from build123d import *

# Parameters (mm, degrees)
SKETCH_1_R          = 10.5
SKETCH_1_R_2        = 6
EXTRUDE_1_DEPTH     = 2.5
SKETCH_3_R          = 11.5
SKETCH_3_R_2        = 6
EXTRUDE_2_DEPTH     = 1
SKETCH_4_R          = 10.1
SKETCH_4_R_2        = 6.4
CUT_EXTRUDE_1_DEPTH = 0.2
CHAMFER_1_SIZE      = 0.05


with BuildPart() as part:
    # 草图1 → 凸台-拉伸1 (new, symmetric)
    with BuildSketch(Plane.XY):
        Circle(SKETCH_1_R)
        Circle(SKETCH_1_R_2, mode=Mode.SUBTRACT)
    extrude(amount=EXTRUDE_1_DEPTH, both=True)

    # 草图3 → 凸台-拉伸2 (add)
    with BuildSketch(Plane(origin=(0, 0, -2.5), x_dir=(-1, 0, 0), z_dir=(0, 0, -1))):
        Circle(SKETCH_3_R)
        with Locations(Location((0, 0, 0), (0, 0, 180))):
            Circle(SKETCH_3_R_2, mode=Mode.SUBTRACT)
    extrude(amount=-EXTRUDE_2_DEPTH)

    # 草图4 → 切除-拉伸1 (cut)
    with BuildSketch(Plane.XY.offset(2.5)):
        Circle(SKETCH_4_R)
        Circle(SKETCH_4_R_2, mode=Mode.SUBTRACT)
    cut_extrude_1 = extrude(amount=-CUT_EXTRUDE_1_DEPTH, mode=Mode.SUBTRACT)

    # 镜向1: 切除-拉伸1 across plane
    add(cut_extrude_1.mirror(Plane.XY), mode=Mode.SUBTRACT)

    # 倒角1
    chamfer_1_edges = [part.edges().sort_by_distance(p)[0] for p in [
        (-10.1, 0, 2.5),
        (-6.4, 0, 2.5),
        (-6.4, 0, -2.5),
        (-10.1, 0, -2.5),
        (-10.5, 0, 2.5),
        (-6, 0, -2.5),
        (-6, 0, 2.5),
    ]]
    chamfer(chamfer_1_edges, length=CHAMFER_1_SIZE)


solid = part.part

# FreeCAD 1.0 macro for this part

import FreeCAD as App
import Part
import Sketcher


def edges_at(feature, points):
    """Names of the edges that pass closest to the given points."""
    edges = feature.Shape.Edges
    near = lambda p: min(range(len(edges)), key=lambda i: edges[i].distToShape(Part.Vertex(*p))[0])
    return sorted({f"Edge{near(p) + 1}" for p in points})

doc = App.newDocument("Part")
body = doc.addObject("PartDesign::Body", "Body")

# Sketch on XY plane
sketch1 = body.newObject("Sketcher::SketchObject", "Sketch")
sketch1.AttachmentSupport = (doc.getObject("XY_Plane"), [""])
sketch1.MapMode = "FlatFace"
sketch1.addGeometry([
    Part.Circle(App.Vector(0, 0, 0), App.Vector(0, 0, 1), 10),
    Part.Circle(App.Vector(0, 0, 0), App.Vector(0, 0, 1), 6),
], False)
sketch1.addConstraint([
    Sketcher.Constraint("Coincident", 0, 3, -1, 1),
    Sketcher.Constraint("Coincident", 1, 3, -1, 1),
    Sketcher.Constraint("Diameter", 0, 21.0),
    Sketcher.Constraint("Diameter", 1, 12.0),
])
pad1 = body.newObject("PartDesign::Pad", "Pad")
pad1.Profile = sketch1
pad1.Length = 5
pad1.Midplane = True

# Sketch on XY plane
sketch2 = body.newObject("Sketcher::SketchObject", "Sketch001")
sketch2.AttachmentSupport = (doc.getObject("XY_Plane"), [""])
sketch2.MapMode = "FlatFace"
sketch2.AttachmentOffset = App.Placement(App.Vector(0, 0, -2.5), App.Rotation())
sketch2.addGeometry([
    Part.Circle(App.Vector(0, 0, 0), App.Vector(0, 0, 1), 12),
    Part.Circle(App.Vector(0, 0, 0), App.Vector(0, 0, 1), 6),
], False)
sketch2.addConstraint([
    Sketcher.Constraint("Coincident", 0, 3, -1, 1),
    Sketcher.Constraint("Coincident", 1, 3, -1, 1),
    Sketcher.Constraint("Diameter", 0, 23.0),
    Sketcher.Constraint("Diameter", 1, 12.0),
])
pad2 = body.newObject("PartDesign::Pad", "Pad001")
pad2.Profile = sketch2
pad2.Length = 1

# Sketch on XY plane
sketch3 = body.newObject("Sketcher::SketchObject", "Sketch002")
sketch3.AttachmentSupport = (doc.getObject("XY_Plane"), [""])
sketch3.MapMode = "FlatFace"
sketch3.AttachmentOffset = App.Placement(App.Vector(0, 0, 2.5), App.Rotation())
sketch3.addGeometry([
    Part.Circle(App.Vector(0, 0, 0), App.Vector(0, 0, 1), 10),
    Part.Circle(App.Vector(0, 0, 0), App.Vector(0, 0, 1), 6),
], False)
sketch3.addConstraint([
    Sketcher.Constraint("Coincident", 0, 3, -1, 1),
    Sketcher.Constraint("Coincident", 1, 3, -1, 1),
    Sketcher.Constraint("Diameter", 0, 20.2),
    Sketcher.Constraint("Diameter", 1, 12.8),
])
pocket1 = body.newObject("PartDesign::Pocket", "Pocket")
pocket1.Profile = sketch3
pocket1.Length = 0.2
doc.recompute()

mirrored = body.newObject("PartDesign::Mirrored", "Mirrored")
mirrored.Originals = [pocket1]
mirrored.MirrorPlane = (doc.getObject("XY_Plane"), [""])
body.Tip = mirrored
doc.recompute()

chamfer = body.newObject("PartDesign::Chamfer", "Chamfer")
chamfer.Base = (mirrored, edges_at(mirrored, [
    (-10.1, 0, 2.5),
    (-6.4, 0, 2.5),
    (-6.4, 0, -2.5),
    (-10.1, 0, -2.5),
    (-10.5, 0, 2.5),
    (-6, 0, -2.5),
    (-6, 0, 2.5),
]))
chamfer.Size = 0.05

doc.recompute()
